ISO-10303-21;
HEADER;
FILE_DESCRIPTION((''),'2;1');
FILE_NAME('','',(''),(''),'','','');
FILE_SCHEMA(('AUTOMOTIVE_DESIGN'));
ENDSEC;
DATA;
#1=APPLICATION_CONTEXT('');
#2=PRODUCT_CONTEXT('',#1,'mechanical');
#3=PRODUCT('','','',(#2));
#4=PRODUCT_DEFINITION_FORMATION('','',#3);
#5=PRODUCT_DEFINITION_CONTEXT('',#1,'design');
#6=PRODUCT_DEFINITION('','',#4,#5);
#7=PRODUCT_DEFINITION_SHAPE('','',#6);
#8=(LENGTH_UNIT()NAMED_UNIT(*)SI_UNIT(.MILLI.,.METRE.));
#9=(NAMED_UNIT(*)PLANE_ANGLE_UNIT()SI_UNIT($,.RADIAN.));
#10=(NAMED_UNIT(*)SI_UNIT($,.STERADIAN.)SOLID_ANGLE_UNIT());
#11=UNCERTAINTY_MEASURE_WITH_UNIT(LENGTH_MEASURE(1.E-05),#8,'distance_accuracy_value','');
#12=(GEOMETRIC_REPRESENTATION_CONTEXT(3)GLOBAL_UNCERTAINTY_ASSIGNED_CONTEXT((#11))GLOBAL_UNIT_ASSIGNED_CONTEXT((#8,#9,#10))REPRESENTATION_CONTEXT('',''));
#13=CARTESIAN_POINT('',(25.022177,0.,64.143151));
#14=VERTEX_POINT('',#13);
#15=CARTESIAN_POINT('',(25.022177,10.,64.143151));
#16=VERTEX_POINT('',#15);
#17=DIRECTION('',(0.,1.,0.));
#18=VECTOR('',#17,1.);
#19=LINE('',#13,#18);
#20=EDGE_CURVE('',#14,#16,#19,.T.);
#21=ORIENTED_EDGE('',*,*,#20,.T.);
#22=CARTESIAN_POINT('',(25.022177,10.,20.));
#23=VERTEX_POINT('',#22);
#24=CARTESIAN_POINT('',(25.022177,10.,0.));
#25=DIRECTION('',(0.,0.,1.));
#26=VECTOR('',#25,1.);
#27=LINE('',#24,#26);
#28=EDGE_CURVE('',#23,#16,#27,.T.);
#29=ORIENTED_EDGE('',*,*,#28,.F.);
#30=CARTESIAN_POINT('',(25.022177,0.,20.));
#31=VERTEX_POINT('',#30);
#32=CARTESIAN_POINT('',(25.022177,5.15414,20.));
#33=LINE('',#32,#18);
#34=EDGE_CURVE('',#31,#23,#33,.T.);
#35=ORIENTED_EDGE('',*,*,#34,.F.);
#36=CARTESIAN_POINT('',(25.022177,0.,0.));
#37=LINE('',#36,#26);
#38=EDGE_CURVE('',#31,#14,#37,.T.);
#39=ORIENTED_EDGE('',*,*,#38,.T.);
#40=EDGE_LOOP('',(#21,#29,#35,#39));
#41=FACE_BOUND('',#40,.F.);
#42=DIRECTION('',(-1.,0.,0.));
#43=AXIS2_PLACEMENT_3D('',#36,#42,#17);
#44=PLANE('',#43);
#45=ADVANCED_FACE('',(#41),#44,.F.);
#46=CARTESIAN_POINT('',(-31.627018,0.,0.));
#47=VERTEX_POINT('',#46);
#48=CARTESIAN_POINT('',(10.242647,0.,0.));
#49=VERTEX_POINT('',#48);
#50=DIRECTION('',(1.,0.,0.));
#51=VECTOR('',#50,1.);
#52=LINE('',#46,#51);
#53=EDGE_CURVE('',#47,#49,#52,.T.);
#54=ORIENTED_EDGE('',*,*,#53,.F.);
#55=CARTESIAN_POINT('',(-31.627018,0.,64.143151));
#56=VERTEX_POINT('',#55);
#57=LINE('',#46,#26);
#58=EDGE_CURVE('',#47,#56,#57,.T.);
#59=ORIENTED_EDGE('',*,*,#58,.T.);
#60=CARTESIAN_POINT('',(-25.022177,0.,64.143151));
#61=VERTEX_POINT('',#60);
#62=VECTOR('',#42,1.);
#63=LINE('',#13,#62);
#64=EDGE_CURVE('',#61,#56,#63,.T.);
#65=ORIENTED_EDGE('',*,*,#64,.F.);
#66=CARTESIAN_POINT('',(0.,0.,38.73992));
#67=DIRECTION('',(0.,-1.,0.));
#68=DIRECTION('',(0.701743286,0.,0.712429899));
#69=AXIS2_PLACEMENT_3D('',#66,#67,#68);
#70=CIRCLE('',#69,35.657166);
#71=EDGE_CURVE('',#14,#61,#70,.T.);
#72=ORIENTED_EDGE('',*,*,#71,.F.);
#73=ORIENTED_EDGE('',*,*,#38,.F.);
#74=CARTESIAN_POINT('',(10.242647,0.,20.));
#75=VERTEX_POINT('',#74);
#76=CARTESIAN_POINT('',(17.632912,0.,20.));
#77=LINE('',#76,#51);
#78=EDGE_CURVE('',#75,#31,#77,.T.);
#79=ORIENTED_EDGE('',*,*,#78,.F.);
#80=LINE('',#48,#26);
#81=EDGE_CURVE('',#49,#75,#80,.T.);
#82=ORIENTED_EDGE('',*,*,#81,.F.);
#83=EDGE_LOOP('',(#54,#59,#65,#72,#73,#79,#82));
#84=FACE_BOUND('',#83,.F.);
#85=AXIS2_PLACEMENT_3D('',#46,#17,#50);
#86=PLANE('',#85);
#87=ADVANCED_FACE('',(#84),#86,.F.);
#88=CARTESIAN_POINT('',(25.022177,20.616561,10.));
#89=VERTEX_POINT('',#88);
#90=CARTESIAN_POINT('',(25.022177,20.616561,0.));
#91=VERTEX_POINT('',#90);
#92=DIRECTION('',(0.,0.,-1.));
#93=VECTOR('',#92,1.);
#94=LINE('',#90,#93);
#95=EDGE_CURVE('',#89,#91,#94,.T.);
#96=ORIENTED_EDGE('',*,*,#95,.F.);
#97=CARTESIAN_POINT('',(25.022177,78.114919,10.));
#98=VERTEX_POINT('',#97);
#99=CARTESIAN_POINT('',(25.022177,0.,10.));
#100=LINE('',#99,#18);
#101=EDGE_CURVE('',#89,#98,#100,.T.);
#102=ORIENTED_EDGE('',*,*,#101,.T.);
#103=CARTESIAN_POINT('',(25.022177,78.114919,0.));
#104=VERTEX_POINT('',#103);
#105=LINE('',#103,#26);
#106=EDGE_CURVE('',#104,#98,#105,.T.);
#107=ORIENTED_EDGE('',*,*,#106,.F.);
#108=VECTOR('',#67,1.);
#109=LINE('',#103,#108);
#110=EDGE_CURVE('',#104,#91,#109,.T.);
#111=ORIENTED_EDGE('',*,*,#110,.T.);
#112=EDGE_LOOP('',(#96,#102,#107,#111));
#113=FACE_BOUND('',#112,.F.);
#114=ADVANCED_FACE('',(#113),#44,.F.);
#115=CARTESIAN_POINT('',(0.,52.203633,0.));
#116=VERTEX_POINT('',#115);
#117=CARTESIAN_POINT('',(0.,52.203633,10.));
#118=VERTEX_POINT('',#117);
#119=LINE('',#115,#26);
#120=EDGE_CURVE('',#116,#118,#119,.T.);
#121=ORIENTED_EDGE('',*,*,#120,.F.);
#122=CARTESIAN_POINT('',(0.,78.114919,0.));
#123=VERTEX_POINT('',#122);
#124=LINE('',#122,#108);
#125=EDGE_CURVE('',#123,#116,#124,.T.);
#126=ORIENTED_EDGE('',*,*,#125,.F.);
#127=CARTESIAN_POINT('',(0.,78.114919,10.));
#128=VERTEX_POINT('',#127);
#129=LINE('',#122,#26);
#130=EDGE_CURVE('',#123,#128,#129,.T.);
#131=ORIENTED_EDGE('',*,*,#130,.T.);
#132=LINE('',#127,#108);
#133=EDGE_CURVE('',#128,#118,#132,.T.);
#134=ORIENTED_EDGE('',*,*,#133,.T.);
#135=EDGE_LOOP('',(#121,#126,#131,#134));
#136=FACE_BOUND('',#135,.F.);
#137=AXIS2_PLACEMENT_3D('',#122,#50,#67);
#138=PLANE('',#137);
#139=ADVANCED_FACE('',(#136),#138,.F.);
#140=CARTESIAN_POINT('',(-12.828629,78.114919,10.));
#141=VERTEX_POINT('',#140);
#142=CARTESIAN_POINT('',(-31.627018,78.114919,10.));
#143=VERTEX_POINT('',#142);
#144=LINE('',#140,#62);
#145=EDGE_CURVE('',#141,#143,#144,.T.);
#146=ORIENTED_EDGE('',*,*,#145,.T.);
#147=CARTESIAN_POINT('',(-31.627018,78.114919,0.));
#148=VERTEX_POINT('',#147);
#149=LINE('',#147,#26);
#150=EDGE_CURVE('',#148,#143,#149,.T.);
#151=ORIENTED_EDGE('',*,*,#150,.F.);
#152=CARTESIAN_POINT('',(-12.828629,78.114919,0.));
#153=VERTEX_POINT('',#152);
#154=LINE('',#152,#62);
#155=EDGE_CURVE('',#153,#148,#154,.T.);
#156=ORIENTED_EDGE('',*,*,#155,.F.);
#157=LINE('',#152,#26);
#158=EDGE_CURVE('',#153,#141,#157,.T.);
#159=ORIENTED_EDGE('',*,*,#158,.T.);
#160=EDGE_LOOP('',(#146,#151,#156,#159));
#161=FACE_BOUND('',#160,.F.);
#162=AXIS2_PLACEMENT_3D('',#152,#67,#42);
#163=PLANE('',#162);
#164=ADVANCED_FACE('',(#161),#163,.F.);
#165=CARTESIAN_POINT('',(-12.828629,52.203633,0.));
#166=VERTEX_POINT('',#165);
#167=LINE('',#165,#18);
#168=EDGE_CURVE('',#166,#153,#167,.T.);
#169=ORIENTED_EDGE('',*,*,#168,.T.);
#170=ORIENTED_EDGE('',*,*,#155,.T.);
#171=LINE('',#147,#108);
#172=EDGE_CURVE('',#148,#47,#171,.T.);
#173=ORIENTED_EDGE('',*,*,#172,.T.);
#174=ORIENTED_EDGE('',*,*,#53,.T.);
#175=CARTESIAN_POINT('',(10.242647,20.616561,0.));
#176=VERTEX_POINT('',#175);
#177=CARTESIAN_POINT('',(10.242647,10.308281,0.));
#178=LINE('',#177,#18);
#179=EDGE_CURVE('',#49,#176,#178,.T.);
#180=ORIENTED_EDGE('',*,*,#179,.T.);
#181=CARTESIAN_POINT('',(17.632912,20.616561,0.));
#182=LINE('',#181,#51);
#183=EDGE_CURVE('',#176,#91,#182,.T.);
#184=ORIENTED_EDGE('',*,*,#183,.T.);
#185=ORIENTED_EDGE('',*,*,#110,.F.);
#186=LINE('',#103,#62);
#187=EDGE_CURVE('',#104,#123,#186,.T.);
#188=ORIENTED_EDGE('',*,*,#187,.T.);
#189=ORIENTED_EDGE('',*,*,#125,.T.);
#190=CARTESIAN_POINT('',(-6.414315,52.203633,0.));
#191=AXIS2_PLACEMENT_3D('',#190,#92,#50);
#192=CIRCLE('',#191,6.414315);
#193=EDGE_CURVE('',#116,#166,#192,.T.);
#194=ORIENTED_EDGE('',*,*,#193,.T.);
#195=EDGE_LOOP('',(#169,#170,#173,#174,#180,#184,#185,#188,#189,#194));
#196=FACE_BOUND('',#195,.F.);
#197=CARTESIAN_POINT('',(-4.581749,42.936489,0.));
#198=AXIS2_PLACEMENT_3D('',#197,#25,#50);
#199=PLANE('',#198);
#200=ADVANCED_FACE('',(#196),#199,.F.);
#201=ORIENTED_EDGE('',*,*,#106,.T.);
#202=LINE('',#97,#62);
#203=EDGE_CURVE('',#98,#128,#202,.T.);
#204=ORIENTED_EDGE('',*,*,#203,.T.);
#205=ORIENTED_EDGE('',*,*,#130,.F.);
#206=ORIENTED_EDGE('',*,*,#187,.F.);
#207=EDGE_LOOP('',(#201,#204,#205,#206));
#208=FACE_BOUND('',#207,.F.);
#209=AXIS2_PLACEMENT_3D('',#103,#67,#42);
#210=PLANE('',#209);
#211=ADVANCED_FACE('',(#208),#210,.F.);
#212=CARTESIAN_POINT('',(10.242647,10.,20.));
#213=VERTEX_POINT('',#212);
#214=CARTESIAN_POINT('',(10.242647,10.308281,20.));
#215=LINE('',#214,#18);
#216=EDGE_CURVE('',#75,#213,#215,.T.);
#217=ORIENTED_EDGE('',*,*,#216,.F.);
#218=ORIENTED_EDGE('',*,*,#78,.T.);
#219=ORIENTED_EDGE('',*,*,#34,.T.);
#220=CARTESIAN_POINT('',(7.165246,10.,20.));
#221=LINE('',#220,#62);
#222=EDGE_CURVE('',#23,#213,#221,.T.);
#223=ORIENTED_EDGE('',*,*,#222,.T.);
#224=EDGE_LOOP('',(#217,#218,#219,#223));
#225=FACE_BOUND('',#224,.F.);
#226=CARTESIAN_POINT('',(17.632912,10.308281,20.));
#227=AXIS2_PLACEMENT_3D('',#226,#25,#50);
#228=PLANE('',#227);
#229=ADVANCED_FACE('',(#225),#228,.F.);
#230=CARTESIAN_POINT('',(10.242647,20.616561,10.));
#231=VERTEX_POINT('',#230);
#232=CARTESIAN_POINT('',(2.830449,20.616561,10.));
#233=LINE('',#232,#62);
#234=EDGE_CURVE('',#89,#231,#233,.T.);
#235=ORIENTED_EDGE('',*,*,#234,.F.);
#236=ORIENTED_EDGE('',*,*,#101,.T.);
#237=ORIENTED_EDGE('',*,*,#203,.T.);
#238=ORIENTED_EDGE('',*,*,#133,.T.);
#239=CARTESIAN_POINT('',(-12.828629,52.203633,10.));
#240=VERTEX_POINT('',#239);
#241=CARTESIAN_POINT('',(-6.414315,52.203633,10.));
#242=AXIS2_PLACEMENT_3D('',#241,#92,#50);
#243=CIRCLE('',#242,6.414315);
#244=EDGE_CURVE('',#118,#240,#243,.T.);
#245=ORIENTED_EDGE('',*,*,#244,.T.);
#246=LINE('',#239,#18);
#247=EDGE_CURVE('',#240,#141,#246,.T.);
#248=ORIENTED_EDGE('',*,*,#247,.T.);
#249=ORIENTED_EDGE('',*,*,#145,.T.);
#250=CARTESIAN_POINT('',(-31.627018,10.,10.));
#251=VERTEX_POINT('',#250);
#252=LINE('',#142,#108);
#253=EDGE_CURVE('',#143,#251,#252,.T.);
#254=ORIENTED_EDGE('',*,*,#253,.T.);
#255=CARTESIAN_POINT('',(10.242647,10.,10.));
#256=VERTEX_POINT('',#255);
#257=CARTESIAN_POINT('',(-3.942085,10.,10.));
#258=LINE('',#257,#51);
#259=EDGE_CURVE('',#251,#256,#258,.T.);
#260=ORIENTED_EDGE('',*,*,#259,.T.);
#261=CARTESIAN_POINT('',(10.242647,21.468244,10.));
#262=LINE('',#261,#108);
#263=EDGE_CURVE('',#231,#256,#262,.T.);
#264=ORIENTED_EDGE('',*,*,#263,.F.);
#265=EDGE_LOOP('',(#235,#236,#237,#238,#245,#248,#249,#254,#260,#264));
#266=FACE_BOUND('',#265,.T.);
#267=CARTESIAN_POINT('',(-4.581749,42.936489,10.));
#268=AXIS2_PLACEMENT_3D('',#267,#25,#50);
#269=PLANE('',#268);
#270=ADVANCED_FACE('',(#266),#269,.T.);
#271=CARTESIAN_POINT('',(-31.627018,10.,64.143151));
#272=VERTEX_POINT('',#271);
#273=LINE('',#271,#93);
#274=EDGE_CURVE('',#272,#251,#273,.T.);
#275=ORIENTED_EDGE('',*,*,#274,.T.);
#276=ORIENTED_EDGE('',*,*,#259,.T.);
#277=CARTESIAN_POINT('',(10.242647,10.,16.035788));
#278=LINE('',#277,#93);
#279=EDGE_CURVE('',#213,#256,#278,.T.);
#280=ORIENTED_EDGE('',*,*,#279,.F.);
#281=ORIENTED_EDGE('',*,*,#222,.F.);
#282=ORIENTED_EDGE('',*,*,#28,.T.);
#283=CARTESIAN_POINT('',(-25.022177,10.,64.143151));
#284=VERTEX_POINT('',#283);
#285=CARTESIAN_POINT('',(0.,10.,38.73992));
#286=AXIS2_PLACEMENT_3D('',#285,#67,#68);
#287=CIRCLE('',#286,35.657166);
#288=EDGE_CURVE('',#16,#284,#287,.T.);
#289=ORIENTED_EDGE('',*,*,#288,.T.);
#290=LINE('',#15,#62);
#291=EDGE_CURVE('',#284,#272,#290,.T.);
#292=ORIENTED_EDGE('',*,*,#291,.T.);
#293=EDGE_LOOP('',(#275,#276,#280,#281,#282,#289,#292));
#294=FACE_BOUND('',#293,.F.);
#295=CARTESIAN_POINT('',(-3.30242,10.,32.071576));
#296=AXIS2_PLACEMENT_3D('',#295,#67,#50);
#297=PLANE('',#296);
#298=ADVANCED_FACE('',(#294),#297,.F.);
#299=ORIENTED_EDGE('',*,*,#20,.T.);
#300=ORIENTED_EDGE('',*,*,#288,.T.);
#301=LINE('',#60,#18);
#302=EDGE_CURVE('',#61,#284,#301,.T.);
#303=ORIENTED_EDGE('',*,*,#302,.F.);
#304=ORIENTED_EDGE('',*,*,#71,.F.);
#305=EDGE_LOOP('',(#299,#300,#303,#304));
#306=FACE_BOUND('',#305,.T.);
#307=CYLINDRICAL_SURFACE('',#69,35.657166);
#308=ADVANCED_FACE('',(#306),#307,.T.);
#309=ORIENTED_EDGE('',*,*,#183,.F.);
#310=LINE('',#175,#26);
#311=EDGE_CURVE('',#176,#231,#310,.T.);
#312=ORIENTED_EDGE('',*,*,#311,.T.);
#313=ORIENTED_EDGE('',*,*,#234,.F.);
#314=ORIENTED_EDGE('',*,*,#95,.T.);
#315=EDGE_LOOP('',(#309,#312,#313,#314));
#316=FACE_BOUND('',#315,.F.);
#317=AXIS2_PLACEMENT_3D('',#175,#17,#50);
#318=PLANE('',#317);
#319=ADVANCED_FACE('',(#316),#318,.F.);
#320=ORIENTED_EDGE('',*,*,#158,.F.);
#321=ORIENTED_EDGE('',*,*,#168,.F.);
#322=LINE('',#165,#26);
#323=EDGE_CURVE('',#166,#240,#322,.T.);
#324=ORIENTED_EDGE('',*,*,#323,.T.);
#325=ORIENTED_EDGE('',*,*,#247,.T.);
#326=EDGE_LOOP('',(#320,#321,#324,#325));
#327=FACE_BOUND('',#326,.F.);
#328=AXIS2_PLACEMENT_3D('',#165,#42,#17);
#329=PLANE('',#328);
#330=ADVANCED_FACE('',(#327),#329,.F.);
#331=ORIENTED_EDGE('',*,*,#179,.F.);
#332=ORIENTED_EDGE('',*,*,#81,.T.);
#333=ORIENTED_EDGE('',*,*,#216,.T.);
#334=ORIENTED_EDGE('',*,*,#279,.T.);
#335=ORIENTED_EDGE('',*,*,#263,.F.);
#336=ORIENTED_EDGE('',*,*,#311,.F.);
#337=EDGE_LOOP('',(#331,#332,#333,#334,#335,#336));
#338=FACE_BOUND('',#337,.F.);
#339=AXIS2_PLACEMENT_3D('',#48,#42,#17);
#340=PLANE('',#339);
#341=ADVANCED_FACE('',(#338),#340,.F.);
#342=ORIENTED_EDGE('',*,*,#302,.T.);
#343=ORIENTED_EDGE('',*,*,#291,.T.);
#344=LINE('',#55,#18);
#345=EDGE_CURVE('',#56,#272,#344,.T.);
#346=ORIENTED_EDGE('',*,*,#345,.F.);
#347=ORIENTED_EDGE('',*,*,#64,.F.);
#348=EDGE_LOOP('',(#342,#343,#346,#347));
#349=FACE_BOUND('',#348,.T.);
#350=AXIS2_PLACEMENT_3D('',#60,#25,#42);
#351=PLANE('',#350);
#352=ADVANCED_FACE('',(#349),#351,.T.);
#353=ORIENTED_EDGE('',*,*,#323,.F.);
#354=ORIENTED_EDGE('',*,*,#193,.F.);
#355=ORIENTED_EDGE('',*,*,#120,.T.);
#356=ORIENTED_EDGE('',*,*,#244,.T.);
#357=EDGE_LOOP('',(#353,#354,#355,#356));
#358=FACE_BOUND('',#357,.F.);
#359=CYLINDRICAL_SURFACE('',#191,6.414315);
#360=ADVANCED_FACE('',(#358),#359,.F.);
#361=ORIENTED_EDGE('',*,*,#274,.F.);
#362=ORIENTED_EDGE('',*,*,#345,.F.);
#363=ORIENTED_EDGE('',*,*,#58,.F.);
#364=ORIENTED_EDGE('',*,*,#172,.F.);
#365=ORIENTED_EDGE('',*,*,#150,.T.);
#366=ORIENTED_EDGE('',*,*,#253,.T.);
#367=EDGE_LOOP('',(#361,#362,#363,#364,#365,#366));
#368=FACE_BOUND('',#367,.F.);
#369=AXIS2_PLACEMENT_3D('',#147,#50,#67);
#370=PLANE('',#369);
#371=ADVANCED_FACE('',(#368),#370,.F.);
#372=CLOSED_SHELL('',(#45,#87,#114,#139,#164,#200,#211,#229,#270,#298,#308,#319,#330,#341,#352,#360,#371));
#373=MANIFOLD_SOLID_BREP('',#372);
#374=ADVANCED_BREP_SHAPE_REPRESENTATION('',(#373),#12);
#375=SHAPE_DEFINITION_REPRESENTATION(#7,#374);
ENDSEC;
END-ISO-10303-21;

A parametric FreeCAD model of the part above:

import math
import FreeCAD as App
import Part
import Sketcher
from FreeCAD import Vector
Q = App.Units.Quantity


def add_polygon(sketch, points):
    """Adds a closed chain of lines whose ends are joined by coincident constraints."""
    first, n = sketch.GeometryCount, len(points)
    for a, b in zip(points, points[1:] + points[:1]):
        sketch.addGeometry(Part.LineSegment(App.Vector(*a, 0), App.Vector(*b, 0)), False)
    for i in range(n):
        sketch.addConstraint(Sketcher.Constraint("Coincident", first + i, 2, first + (i + 1) % n, 1))

doc = App.newDocument("Part")
body = doc.addObject("PartDesign::Body", "Body")

sketch1 = body.newObject("Sketcher::SketchObject", "Sketch")
sketch1.AttachmentSupport = (doc.getObject("XY_Plane"), [""])
sketch1.MapMode = "FlatFace"
sketch1.addGeometry([
    Part.LineSegment(Vector(-31.627018, 78.114919, 0), Vector(-31.627018, 0, 0)),
    Part.LineSegment(Vector(-31.627018, 0, 0), Vector(25.022177, 0, 0)),
    Part.LineSegment(Vector(25.022177, 0, 0), Vector(25.022177, 78.114919, 0)),
    Part.LineSegment(Vector(25.022177, 78.114919, 0), Vector(0, 78.114919, 0)),
    Part.LineSegment(Vector(0, 78.114919, 0), Vector(0, 52.203633, 0)),
    Part.ArcOfCircle(Part.Circle(Vector(-6.414315, 52.203633, 0), Vector(0, 0, 1), 6.414315), math.radians(180), math.radians(360)),
    Part.LineSegment(Vector(-12.828629, 52.203633, 0), Vector(-12.828629, 78.114919, 0)),
    Part.LineSegment(Vector(-12.828629, 78.114919, 0), Vector(-31.627018, 78.114919, 0)),
], False)
sketch1.addConstraint([
    Sketcher.Constraint("Coincident", 0, 2, 1, 1),
    Sketcher.Constraint("Coincident", 1, 2, 2, 1),
    Sketcher.Constraint("Coincident", 2, 2, 3, 1),
    Sketcher.Constraint("Coincident", 3, 2, 4, 1),
    Sketcher.Constraint("Tangent", 4, 2, 5, 2),
    Sketcher.Constraint("Tangent", 5, 1, 6, 1),
    Sketcher.Constraint("Coincident", 6, 2, 7, 1),
    Sketcher.Constraint("Coincident", 7, 2, 0, 1),
    Sketcher.Constraint("Vertical", 0),
    Sketcher.Constraint("Horizontal", 1),
    Sketcher.Constraint("Vertical", 2),
    Sketcher.Constraint("Horizontal", 3),
    Sketcher.Constraint("Vertical", 4),
    Sketcher.Constraint("Vertical", 6),
    Sketcher.Constraint("Horizontal", 7),
    Sketcher.Constraint("PointOnObject", 0, 2, -1),
    Sketcher.Constraint("PointOnObject", 3, 2, -2),
    Sketcher.Constraint("Horizontal", 3, 2, 6, 2),
    Sketcher.Constraint("Radius", 5, Q("6.414315 mm")),
    Sketcher.Constraint("DistanceX", 7, 2, 7, 1, Q("18.798389 mm")),
    Sketcher.Constraint("DistanceY", 0, 2, 0, 1, Q("78.114919 mm")),
    Sketcher.Constraint("DistanceX", 1, 1, 1, 2, Q("56.649195 mm")),
    Sketcher.Constraint("DistanceY", 4, 2, 4, 1, Q("25.911286 mm")),
])
pad1 = body.newObject("PartDesign::Pad", "Pad")
pad1.Profile = sketch1
pad1.Length = 10

sketch2 = body.newObject("Sketcher::SketchObject", "Sketch001")
sketch2.AttachmentSupport = (doc.getObject("XZ_Plane"), [""])
sketch2.MapMode = "FlatFace"
sketch2.addGeometry([
    Part.LineSegment(Vector(-31.627018, 0, 0), Vector(25.022177, 0, 0)),
    Part.LineSegment(Vector(25.022177, 0, 0), Vector(25.022177, 64.143151, 0)),
    Part.ArcOfCircle(Part.Circle(Vector(0, 38.73992, 0), Vector(0, 0, 1), 35.657166), math.radians(45.432964), math.radians(134.567036)),
    Part.LineSegment(Vector(-25.022177, 64.143151, 0), Vector(-31.627018, 64.143151, 0)),
    Part.LineSegment(Vector(-31.627018, 64.143151, 0), Vector(-31.627018, 0, 0)),
], False)
sketch2.addConstraint([
    Sketcher.Constraint("Coincident", 0, 2, 1, 1),
    Sketcher.Constraint("Coincident", 1, 2, 2, 1),
    Sketcher.Constraint("Coincident", 2, 2, 3, 1),
    Sketcher.Constraint("Coincident", 3, 2, 4, 1),
    Sketcher.Constraint("Coincident", 4, 2, 0, 1),
    Sketcher.Constraint("Horizontal", 0),
    Sketcher.Constraint("Vertical", 1),
    Sketcher.Constraint("Horizontal", 3),
    Sketcher.Constraint("Vertical", 4),
    Sketcher.Constraint("Symmetric", 1, 2, 2, 2, -2),
    Sketcher.Constraint("PointOnObject", 0, 2, -1),
    Sketcher.Constraint("Radius", 2, Q("35.657166 mm")),
    Sketcher.Constraint("DistanceX", 3, 2, 3, 1, Q("6.604841 mm")),
    Sketcher.Constraint("DistanceY", 1, 1, 1, 2, Q("64.143151 mm")),
    Sketcher.Constraint("DistanceX", 0, 1, 0, 2, Q("56.649195 mm")),
])
pad2 = body.newObject("PartDesign::Pad", "Pad001")
pad2.Profile = sketch2
pad2.Length = 10
pad2.Reversed = True

sketch3 = body.newObject("Sketcher::SketchObject", "Sketch002")
sketch3.AttachmentSupport = (doc.getObject("XY_Plane"), [""])
sketch3.MapMode = "FlatFace"
add_polygon(sketch3, [(10.242647, 20.616561), (10.242647, 0), (25.023177, 0), (25.023177, 20.616561)])
sketch3.addConstraint([
    Sketcher.Constraint("Vertical", 0),
    Sketcher.Constraint("Horizontal", 1),
    Sketcher.Constraint("Vertical", 2),
    Sketcher.Constraint("Horizontal", 3),
    Sketcher.Constraint("PointOnObject", 0, 2, -1),
    Sketcher.Constraint("DistanceX", 1, 1, 1, 2, Q("14.78053 mm")),
    Sketcher.Constraint("DistanceY", 0, 2, 0, 1, Q("20.616561 mm")),
    Sketcher.Constraint("DistanceX", -1, 1, 0, 2, Q("10.242647 mm")),
])
pocket1 = body.newObject("PartDesign::Pocket", "Pocket")
pocket1.Profile = sketch3
pocket1.Length = 20
pocket1.Reversed = True

doc.recompute()
